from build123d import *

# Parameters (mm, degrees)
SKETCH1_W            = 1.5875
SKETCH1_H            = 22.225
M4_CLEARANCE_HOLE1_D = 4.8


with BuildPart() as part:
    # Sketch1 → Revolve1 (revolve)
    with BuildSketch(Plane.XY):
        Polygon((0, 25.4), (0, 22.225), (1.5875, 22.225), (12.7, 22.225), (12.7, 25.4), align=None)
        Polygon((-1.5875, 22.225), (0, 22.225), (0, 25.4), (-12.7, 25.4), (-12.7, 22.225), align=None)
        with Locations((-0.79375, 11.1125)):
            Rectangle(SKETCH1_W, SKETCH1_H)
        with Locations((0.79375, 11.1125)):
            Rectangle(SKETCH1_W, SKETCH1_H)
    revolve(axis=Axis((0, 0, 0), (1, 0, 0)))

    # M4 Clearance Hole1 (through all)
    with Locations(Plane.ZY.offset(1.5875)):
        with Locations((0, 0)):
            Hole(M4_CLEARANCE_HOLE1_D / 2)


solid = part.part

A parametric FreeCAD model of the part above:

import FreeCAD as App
import Part
import Sketcher
from FreeCAD import Vector
Q = App.Units.Quantity


def add_polygon(sketch, points):
    """Adds a closed chain of lines whose ends are joined by coincident constraints."""
    first, n = sketch.GeometryCount, len(points)
    for a, b in zip(points, points[1:] + points[:1]):
        sketch.addGeometry(Part.LineSegment(App.Vector(*a, 0), App.Vector(*b, 0)), False)
    for i in range(n):
        sketch.addConstraint(Sketcher.Constraint("Coincident", first + i, 2, first + (i + 1) % n, 1))

doc = App.newDocument("Part")
body = doc.addObject("PartDesign::Body", "Body")

# Sketch on XY plane
sketch1 = doc.addObject("Sketcher::SketchObject", "Sketch")
body.addObject(sketch1)
sketch1.AttachmentSupport = (doc.XY_Plane, [""])
sketch1.MapMode = "FlatFace"
add_polygon(sketch1, [(12.7, 22.225), (12.7, 25.4), (-12.7, 25.4), (-12.7, 22.225), (-1.5875, 22.225), (-1.5875, 0), (1.5875, 0), (1.5875, 22.225)])  # lines 0-7
sketch1.addConstraint([
    Sketcher.Constraint("Vertical", 0),
    Sketcher.Constraint("Horizontal", 1),
    Sketcher.Constraint("Vertical", 2),
    Sketcher.Constraint("Horizontal", 3),
    Sketcher.Constraint("Vertical", 4),
    Sketcher.Constraint("Horizontal", 5),
    Sketcher.Constraint("Vertical", 6),
    Sketcher.Constraint("Horizontal", 7),
    Sketcher.Constraint("Symmetric", 4, 2, 5, 2, -1, 1),
    Sketcher.Constraint("Symmetric", 2, 2, 7, 2, -2),
    Sketcher.Constraint("Equal", 5, 0),
    Sketcher.Constraint("DistanceX", 1, 2, 1, 1, Q("1 in")),
    Sketcher.Constraint("DistanceY", -1, 1, 0, 2, Q("1 in")),
    Sketcher.Constraint("DistanceX", 3, 1, 3, 2, Q("0.4375 in")),
])
revolution = doc.addObject("PartDesign::Revolution", "Revolution")
body.addObject(revolution)
revolution.Profile = sketch1
revolution.ReferenceAxis = (sketch1, ["H_Axis"])
revolution.Angle = 360

# Sketch on YZ plane
sketch2 = doc.addObject("Sketcher::SketchObject", "Sketch001")
body.addObject(sketch2)
sketch2.AttachmentSupport = (doc.YZ_Plane, [""])
sketch2.MapMode = "FlatFace"
sketch2.AttachmentOffset = App.Placement(Vector(0, 0, -0.0625 * 25.4), App.Rotation())
sketch2.addGeometry(Part.Circle(Vector(0, 0, 0), Vector(0, 0, 1), 2.4), False)
sketch2.addConstraint([
    Sketcher.Constraint("Coincident", 0, 3, -1, 1),
    Sketcher.Constraint("Diameter", 0, Q("4.8 mm")),
])
doc.recompute()
hole = doc.addObject("PartDesign::Hole", "Hole")
body.addObject(hole)
hole.Profile = sketch2
hole.ThreadType = "None"
hole.Diameter = 4.8
hole.DepthType = "ThroughAll"
hole.Reversed = True

doc.recompute()
